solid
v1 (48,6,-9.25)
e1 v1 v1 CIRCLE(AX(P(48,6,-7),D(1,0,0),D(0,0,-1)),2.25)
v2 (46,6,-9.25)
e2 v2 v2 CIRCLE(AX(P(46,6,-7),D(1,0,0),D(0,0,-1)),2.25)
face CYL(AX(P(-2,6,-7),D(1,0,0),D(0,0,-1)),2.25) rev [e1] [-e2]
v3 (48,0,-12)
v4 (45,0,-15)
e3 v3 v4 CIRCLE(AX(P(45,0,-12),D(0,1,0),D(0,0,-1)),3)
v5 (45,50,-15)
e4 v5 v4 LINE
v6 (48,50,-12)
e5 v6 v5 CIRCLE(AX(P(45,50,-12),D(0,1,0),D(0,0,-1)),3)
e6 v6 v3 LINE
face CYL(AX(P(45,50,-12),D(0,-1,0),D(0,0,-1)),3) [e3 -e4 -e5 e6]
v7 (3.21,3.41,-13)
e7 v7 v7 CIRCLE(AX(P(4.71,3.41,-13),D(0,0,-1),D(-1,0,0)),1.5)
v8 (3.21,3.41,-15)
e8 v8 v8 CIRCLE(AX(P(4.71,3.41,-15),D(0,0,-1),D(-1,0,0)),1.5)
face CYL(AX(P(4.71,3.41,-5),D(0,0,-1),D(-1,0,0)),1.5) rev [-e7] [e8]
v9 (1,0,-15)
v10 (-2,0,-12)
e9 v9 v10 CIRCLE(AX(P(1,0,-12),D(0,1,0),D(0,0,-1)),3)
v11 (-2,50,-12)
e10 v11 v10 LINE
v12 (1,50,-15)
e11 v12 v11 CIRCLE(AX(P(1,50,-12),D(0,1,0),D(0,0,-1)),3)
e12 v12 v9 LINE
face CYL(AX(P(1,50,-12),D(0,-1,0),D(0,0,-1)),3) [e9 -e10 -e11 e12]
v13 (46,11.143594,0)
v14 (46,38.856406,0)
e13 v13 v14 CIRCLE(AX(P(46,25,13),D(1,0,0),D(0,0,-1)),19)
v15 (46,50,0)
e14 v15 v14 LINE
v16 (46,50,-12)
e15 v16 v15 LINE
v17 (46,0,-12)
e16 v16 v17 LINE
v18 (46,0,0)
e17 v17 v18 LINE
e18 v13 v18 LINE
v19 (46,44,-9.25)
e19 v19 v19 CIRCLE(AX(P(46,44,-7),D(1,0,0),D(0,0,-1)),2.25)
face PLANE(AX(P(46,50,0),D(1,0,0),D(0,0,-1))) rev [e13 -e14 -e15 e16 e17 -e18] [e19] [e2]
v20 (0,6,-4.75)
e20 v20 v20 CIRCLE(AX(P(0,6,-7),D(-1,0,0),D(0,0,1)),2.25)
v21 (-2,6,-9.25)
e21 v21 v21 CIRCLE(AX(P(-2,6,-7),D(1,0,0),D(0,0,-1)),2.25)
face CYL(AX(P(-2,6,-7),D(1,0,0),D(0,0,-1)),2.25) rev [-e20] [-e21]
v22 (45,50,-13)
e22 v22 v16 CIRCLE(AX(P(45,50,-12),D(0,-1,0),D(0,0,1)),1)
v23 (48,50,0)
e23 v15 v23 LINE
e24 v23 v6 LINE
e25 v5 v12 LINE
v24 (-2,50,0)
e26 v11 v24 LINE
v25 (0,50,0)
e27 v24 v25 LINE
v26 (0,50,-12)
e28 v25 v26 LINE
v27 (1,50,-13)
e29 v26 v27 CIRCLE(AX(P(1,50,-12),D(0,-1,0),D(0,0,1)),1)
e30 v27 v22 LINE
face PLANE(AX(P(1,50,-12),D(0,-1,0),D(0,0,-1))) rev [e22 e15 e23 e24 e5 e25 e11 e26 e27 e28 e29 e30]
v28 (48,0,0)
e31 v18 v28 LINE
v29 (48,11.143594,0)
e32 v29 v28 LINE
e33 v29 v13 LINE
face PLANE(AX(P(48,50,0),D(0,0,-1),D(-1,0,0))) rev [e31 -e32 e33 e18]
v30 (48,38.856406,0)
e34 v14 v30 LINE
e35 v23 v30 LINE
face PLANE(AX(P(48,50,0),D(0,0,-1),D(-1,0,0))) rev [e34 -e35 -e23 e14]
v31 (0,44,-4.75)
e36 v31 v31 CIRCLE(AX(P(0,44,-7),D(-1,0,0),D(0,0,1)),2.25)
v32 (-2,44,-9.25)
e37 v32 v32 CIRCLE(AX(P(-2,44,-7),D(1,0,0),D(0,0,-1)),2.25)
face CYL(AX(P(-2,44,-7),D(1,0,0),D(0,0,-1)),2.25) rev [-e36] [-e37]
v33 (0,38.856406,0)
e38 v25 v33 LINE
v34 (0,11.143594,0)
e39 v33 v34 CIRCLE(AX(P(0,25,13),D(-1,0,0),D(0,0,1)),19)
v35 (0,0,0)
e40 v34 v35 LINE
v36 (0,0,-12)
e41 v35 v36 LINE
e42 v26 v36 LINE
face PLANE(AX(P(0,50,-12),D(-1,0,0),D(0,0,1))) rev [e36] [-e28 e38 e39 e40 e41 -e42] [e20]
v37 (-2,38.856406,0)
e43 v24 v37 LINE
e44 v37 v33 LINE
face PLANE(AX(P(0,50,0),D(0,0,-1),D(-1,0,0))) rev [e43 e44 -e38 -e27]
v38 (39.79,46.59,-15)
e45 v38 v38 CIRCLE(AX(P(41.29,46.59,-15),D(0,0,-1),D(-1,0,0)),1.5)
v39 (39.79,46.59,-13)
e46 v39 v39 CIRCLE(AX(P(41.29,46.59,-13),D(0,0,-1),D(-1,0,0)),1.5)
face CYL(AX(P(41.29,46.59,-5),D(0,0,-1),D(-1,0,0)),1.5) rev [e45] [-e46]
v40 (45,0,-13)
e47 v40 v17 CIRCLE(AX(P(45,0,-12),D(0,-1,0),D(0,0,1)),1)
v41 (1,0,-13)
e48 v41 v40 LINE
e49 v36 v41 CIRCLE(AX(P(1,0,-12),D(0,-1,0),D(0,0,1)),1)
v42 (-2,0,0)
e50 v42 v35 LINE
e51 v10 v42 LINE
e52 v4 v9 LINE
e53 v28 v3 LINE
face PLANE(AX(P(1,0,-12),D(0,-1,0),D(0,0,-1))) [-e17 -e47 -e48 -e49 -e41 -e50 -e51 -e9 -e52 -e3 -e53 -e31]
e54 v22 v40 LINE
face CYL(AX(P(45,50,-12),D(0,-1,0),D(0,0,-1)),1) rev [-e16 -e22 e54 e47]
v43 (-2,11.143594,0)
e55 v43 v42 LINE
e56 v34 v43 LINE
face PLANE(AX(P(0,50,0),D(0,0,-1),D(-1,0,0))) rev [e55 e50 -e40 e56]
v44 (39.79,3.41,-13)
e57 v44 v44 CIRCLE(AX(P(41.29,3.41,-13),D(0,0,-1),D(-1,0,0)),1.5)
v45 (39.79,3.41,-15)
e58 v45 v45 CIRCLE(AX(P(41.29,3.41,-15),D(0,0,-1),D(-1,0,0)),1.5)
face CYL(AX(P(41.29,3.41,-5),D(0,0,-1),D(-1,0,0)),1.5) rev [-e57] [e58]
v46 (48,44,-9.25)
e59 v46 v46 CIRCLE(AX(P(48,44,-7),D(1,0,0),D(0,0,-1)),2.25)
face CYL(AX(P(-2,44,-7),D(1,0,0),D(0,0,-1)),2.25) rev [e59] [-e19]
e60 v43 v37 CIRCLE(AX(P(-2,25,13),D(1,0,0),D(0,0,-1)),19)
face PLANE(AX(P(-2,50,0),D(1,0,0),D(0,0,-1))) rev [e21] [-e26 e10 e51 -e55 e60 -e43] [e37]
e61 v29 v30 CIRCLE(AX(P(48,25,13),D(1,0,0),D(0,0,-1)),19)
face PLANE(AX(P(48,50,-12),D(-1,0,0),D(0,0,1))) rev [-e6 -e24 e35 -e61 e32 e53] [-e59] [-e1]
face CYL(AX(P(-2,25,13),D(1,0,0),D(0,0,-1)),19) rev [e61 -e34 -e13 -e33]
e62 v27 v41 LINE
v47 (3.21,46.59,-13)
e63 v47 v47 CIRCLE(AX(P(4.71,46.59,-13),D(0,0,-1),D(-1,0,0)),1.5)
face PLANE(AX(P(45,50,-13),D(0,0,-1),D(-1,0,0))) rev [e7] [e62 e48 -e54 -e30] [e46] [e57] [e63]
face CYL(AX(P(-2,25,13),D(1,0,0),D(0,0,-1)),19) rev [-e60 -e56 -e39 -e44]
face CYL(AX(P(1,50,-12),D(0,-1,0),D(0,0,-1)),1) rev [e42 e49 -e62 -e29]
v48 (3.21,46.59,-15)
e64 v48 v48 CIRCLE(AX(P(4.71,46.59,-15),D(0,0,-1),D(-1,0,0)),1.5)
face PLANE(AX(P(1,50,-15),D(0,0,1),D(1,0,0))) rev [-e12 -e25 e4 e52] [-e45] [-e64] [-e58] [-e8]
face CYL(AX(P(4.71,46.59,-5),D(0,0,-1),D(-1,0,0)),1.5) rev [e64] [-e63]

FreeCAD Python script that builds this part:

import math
import FreeCAD as App
import Part
import Sketcher

V = App.Vector

doc = App.newDocument("Part")
body = doc.addObject("PartDesign::Body", "Body")

# Sketch on XZ plane
sketch1 = doc.addObject("Sketcher::SketchObject", "Sketch")
body.addObject(sketch1)
sketch1.AttachmentSupport = (doc.XZ_Plane, [""])
sketch1.MapMode = "FlatFace"
sketch1.addGeometry([
    Part.LineSegment(V(-2, -12, 0), V(-2, 0, 0)),  # 0
    Part.LineSegment(V(-2, 0, 0), V(0, 0, 0)),  # 1
    Part.LineSegment(V(0, 0, 0), V(0, -12, 0)),  # 2
    Part.ArcOfCircle(Part.Circle(V(1, -12, 0), V(0, 0, 1), 1), math.radians(-180), math.radians(-90)),  # 3
    Part.LineSegment(V(1, -13, 0), V(45, -13, 0)),  # 4
    Part.ArcOfCircle(Part.Circle(V(45, -12, 0), V(0, 0, 1), 1), math.radians(-90), math.radians(0)),  # 5
    Part.LineSegment(V(46, -12, 0), V(46, 0, 0)),  # 6
    Part.LineSegment(V(46, 0, 0), V(48, 0, 0)),  # 7
    Part.LineSegment(V(48, 0, 0), V(48, -12, 0)),  # 8
    Part.ArcOfCircle(Part.Circle(V(45, -12, 0), V(0, 0, 1), 3), math.radians(-90), math.radians(0)),  # 9
    Part.LineSegment(V(45, -15, 0), V(1, -15, 0)),  # 10
    Part.ArcOfCircle(Part.Circle(V(1, -12, 0), V(0, 0, 1), 3), math.radians(180), math.radians(270)),  # 11
], False)
sketch1.addConstraint([
    Sketcher.Constraint("Coincident", 0, 2, 1, 1),
    Sketcher.Constraint("Coincident", 1, 2, 2, 1),
    Sketcher.Constraint("Tangent", 2, 2, 3, 1),
    Sketcher.Constraint("Tangent", 3, 2, 4, 1),
    Sketcher.Constraint("Tangent", 4, 2, 5, 1),
    Sketcher.Constraint("Tangent", 5, 2, 6, 1),
    Sketcher.Constraint("Coincident", 6, 2, 7, 1),
    Sketcher.Constraint("Coincident", 7, 2, 8, 1),
    Sketcher.Constraint("Tangent", 8, 2, 9, 2),
    Sketcher.Constraint("Tangent", 9, 1, 10, 1),
    Sketcher.Constraint("Tangent", 10, 2, 11, 2),
    Sketcher.Constraint("Tangent", 11, 1, 0, 1),
    Sketcher.Constraint("Vertical", 0),
    Sketcher.Constraint("Horizontal", 1),
    Sketcher.Constraint("Vertical", 2),
    Sketcher.Constraint("Horizontal", 4),
    Sketcher.Constraint("Vertical", 6),
    Sketcher.Constraint("Horizontal", 7),
    Sketcher.Constraint("Vertical", 8),
    Sketcher.Constraint("Horizontal", 10),
    Sketcher.Constraint("Coincident", 1, 2, -1, 1),
    Sketcher.Constraint("Coincident", 9, 3, 5, 3),
    Sketcher.Constraint("Coincident", 11, 3, 3, 3),
    Sketcher.Constraint("Equal", 3, 5),
    Sketcher.Constraint("PointOnObject", 6, 2, -1),
    Sketcher.Constraint("Radius", 3, 1.0),
    Sketcher.Constraint("Radius", 9, 3.0),
    Sketcher.Constraint("DistanceX", 4, 1, 4, 2, 44.0),
    Sketcher.Constraint("DistanceY", 0, 1, 0, 2, 12.0),
])
pad1 = doc.addObject("PartDesign::Pad", "Pad")
body.addObject(pad1)
pad1.Profile = sketch1
pad1.Length = 50
pad1.Reversed = True

# Sketch on YZ plane
sketch2 = doc.addObject("Sketcher::SketchObject", "Sketch001")
body.addObject(sketch2)
sketch2.AttachmentSupport = (doc.YZ_Plane, [""])
sketch2.MapMode = "FlatFace"
sketch2.AttachmentOffset = App.Placement(V(0, 0, 48), App.Rotation())
sketch2.addGeometry([
    Part.Circle(V(25, 13, 0), V(0, 0, 1), 19),
    Part.Circle(V(44, -7, 0), V(0, 0, 1), 2.2),
    Part.Circle(V(6, -7, 0), V(0, 0, 1), 2.2),
], False)
sketch2.addConstraint([
    Sketcher.Constraint("Equal", 1, 2),
    Sketcher.Constraint("Horizontal", 1, 3, 2, 3),
    Sketcher.Constraint("Diameter", 0, 38.0),
    Sketcher.Constraint("Diameter", 1, 4.5),
    Sketcher.Constraint("DistanceX", -1, 1, 0, 3, 25.0),
    Sketcher.Constraint("DistanceY", -1, 1, 0, 3, 13.0),
    Sketcher.Constraint("DistanceX", -1, 1, 1, 3, 44.0),
    Sketcher.Constraint("DistanceY", 1, 3, -1, 1, 7.0),
    Sketcher.Constraint("DistanceX", -1, 1, 2, 3, 6.0),
])
pocket1 = doc.addObject("PartDesign::Pocket", "Pocket")
body.addObject(pocket1)
pocket1.Profile = sketch2
pocket1.Type = "ThroughAll"

# Sketch on XY plane
sketch3 = doc.addObject("Sketcher::SketchObject", "Sketch002")
body.addObject(sketch3)
sketch3.AttachmentSupport = (doc.XY_Plane, [""])
sketch3.MapMode = "FlatFace"
sketch3.AttachmentOffset = App.Placement(V(0, 0, -15), App.Rotation())
sketch3.addGeometry([
    Part.Circle(V(41.3, 46.6, 0), V(0, 0, 1), 1.5),
    Part.Circle(V(4.7, 46.6, 0), V(0, 0, 1), 1.5),
    Part.Circle(V(4.7, 3.4, 0), V(0, 0, 1), 1.5),
    Part.Circle(V(41.3, 3.4, 0), V(0, 0, 1), 1.5),
], False)
sketch3.addConstraint([
    Sketcher.Constraint("Equal", 0, 1),
    Sketcher.Constraint("Equal", 1, 2),
    Sketcher.Constraint("Equal", 2, 3),
    Sketcher.Constraint("Horizontal", 0, 3, 1, 3),
    Sketcher.Constraint("Horizontal", 2, 3, 3, 3),
    Sketcher.Constraint("Vertical", 1, 3, 2, 3),
    Sketcher.Constraint("Vertical", 0, 3, 3, 3),
    Sketcher.Constraint("Diameter", 0, 3.0),
    Sketcher.Constraint("DistanceX", -1, 1, 0, 3, 41.29),
    Sketcher.Constraint("DistanceY", -1, 1, 0, 3, 46.59),
    Sketcher.Constraint("DistanceX", -1, 1, 1, 3, 4.71),
    Sketcher.Constraint("DistanceY", -1, 1, 2, 3, 3.41),
])
pocket2 = doc.addObject("PartDesign::Pocket", "Pocket001")
body.addObject(pocket2)
pocket2.Profile = sketch3
pocket2.Length = 10
pocket2.Reversed = True

doc.recompute()
